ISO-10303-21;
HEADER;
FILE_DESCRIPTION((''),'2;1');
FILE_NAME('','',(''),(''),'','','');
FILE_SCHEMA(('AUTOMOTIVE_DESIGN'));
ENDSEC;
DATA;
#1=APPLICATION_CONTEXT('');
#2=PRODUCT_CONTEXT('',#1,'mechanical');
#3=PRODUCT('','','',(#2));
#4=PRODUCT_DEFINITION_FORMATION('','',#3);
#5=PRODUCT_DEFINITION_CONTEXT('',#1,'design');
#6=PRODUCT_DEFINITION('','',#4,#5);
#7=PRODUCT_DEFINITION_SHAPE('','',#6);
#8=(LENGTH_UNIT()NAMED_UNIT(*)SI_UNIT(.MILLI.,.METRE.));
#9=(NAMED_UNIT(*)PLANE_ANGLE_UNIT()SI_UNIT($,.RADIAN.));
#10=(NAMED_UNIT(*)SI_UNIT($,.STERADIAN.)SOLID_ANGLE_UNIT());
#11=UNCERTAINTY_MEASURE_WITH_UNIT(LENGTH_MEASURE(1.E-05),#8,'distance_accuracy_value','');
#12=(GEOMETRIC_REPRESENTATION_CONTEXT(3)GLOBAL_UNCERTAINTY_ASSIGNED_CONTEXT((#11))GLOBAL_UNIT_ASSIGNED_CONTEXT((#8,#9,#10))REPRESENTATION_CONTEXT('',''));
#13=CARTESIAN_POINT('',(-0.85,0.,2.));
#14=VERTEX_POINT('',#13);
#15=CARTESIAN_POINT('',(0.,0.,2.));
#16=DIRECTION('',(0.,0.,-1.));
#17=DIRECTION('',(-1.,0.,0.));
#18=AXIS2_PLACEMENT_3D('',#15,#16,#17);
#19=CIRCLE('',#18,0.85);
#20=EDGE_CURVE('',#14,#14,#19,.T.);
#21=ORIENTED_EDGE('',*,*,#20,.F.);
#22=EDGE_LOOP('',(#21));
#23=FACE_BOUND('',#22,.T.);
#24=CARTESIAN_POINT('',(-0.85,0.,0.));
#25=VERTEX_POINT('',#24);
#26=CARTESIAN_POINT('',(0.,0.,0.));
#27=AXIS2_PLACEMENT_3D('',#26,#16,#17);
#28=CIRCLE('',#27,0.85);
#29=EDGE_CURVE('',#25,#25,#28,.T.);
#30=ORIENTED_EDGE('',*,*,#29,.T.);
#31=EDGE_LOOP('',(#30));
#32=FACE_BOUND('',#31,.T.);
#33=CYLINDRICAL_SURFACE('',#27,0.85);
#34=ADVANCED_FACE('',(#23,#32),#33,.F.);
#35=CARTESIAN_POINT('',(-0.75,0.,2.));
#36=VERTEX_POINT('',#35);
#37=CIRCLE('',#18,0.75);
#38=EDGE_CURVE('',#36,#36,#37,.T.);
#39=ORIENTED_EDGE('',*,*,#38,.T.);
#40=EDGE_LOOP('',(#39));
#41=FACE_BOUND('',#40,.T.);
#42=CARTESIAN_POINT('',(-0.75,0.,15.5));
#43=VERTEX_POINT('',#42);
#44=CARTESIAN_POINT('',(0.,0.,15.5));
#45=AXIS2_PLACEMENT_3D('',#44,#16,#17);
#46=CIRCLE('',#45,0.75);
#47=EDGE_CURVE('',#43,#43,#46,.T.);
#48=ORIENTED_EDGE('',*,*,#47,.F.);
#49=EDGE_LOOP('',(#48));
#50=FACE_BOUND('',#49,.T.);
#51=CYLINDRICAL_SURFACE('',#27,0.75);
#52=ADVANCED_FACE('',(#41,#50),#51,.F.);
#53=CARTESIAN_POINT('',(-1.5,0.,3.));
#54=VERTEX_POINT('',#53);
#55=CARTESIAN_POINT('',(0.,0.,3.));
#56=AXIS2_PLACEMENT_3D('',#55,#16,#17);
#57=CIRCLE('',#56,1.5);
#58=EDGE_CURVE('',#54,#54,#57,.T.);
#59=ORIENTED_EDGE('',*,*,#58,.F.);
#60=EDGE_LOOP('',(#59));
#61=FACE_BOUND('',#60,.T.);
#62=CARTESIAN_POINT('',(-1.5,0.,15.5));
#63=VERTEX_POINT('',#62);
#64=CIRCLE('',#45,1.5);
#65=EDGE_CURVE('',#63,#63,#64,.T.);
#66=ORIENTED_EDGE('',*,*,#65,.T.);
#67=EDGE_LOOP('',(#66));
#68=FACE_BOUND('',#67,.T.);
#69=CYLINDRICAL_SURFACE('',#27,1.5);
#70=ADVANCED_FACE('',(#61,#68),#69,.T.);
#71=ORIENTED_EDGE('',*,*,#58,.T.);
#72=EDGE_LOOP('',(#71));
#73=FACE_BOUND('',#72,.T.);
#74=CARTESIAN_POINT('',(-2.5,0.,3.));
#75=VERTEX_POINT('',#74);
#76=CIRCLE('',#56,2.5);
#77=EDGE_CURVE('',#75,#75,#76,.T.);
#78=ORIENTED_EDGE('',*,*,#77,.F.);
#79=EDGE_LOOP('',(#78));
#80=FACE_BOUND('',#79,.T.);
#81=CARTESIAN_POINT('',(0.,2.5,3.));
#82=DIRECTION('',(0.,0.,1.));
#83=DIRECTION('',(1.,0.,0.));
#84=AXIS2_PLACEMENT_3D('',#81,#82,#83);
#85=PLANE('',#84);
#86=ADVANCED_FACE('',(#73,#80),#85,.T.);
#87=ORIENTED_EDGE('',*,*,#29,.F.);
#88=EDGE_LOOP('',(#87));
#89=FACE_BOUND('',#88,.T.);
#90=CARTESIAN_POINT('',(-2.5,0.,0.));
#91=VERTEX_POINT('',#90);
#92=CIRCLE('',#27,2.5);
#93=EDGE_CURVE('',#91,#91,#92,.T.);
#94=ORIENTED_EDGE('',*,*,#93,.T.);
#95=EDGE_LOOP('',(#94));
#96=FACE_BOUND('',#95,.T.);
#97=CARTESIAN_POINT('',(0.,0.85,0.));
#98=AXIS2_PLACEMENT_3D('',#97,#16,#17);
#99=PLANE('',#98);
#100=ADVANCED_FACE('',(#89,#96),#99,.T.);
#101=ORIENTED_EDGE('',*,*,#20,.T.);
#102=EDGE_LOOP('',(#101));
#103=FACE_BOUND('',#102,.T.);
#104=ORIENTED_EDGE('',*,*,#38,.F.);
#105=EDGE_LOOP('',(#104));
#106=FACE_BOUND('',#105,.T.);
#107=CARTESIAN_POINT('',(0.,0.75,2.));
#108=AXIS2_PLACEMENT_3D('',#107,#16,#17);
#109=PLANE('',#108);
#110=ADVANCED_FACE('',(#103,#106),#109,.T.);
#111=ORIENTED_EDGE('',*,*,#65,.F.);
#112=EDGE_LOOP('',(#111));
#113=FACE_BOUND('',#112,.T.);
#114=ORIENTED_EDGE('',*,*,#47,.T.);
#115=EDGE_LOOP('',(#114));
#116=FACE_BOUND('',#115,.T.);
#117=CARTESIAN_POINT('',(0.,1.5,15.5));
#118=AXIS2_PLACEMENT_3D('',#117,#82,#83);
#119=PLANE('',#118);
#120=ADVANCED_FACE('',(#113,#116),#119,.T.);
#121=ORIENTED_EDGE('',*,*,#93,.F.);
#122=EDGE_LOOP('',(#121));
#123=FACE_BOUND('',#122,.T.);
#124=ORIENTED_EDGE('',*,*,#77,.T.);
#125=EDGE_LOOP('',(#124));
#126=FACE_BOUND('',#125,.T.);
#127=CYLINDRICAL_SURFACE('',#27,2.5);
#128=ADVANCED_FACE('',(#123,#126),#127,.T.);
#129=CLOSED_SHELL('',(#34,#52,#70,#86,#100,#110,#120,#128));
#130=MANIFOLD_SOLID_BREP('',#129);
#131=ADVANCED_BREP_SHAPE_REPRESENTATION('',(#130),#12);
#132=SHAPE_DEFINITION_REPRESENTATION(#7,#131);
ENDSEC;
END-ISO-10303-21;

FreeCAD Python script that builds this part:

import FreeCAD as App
import Part
import Sketcher

V = App.Vector


def add_polygon(sketch, points):
    """Adds a closed chain of lines whose ends are joined by coincident constraints."""
    first, n = sketch.GeometryCount, len(points)
    for a, b in zip(points, points[1:] + points[:1]):
        sketch.addGeometry(Part.LineSegment(App.Vector(*a, 0), App.Vector(*b, 0)), False)
    for i in range(n):
        sketch.addConstraint(Sketcher.Constraint("Coincident", first + i, 2, first + (i + 1) % n, 1))

doc = App.newDocument("Part")
body = doc.addObject("PartDesign::Body", "Body")

# Sketch on YZ plane
sketch1 = doc.addObject("Sketcher::SketchObject", "Sketch")
body.addObject(sketch1)
sketch1.AttachmentSupport = (doc.YZ_Plane, [""])
sketch1.MapMode = "FlatFace"
add_polygon(sketch1, [(0.85, 0), (2.5, 0), (2.5, 3), (1.5, 3), (1.5, 15.5), (0.75, 15.5), (0.75, 2), (0.85, 2)])  # lines 0-7
sketch1.addConstraint([
    Sketcher.Constraint("Horizontal", 0),
    Sketcher.Constraint("Vertical", 1),
    Sketcher.Constraint("Horizontal", 2),
    Sketcher.Constraint("Vertical", 3),
    Sketcher.Constraint("Horizontal", 4),
    Sketcher.Constraint("Vertical", 5),
    Sketcher.Constraint("Horizontal", 6),
    Sketcher.Constraint("Vertical", 7),
    Sketcher.Constraint("PointOnObject", 0, 2, -1),
    Sketcher.Constraint("DistanceX", 2, 2, 2, 1, 1.0),
    Sketcher.Constraint("DistanceY", 1, 1, 1, 2, 3.0),
    Sketcher.Constraint("DistanceY", 7, 2, 7, 1, 2.0),
    Sketcher.Constraint("DistanceX", 6, 1, 6, 2, 0.1),
    Sketcher.Constraint("DistanceY", 3, 1, 3, 2, 12.5),
    Sketcher.Constraint("DistanceX", 0, 1, 0, 2, 1.65),
    Sketcher.Constraint("DistanceX", -1, 1, 0, 2, 2.5),
])
revolution = doc.addObject("PartDesign::Revolution", "Revolution")
body.addObject(revolution)
revolution.Profile = sketch1
revolution.ReferenceAxis = (sketch1, ["V_Axis"])
revolution.Angle = 360

doc.recompute()
